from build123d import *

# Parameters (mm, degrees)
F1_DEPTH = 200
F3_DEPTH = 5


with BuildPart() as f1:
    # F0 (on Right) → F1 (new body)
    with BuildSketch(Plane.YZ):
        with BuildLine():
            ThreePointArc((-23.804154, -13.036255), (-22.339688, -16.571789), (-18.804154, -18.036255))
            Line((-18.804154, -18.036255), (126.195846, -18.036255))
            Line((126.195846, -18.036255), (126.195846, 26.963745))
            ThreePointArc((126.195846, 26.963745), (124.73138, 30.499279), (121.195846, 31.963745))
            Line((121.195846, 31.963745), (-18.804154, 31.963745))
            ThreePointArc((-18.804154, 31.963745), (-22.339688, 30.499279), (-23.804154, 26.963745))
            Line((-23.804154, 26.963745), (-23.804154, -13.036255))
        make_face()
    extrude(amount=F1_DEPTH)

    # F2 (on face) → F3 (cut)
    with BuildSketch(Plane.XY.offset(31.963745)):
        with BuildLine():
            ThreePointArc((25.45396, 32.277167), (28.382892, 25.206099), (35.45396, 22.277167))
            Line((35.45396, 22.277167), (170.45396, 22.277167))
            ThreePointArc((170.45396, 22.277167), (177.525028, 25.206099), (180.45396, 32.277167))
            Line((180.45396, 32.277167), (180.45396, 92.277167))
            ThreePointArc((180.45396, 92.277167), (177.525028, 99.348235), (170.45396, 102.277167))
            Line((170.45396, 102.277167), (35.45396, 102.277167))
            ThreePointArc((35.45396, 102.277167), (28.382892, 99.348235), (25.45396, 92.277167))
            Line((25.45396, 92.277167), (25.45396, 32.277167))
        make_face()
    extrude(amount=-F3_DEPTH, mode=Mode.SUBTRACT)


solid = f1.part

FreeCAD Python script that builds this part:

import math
import FreeCAD as App
import Part
import Sketcher

V = App.Vector
Q = App.Units.Quantity

doc = App.newDocument("Part")
body = doc.addObject("PartDesign::Body", "Body")

sketch1 = body.newObject("Sketcher::SketchObject", "Sketch")
sketch1.AttachmentSupport = (doc.getObject("YZ_Plane"), [""])
sketch1.MapMode = "FlatFace"
sketch1.addGeometry([
    Part.ArcOfCircle(Part.Circle(V(-18.8, -13, 0), V(0, 0, 1), 5), math.radians(180), math.radians(270)),
    Part.LineSegment(V(-18.8, -18, 0), V(126.2, -18, 0)),
    Part.LineSegment(V(126.2, -18, 0), V(126.2, 27, 0)),
    Part.ArcOfCircle(Part.Circle(V(121.2, 27, 0), V(0, 0, 1), 5), math.radians(0), math.radians(90)),
    Part.LineSegment(V(121.2, 32, 0), V(-18.8, 32, 0)),
    Part.ArcOfCircle(Part.Circle(V(-18.8, 27, 0), V(0, 0, 1), 5), math.radians(90), math.radians(180)),
    Part.LineSegment(V(-23.8, 27, 0), V(-23.8, -13, 0)),
], False)
sketch1.addConstraint([
    Sketcher.Constraint("Tangent", 0, 2, 1, 1),
    Sketcher.Constraint("Coincident", 1, 2, 2, 1),
    Sketcher.Constraint("Tangent", 2, 2, 3, 1),
    Sketcher.Constraint("Tangent", 3, 2, 4, 1),
    Sketcher.Constraint("Tangent", 4, 2, 5, 1),
    Sketcher.Constraint("Tangent", 5, 2, 6, 1),
    Sketcher.Constraint("Tangent", 6, 2, 0, 1),
    Sketcher.Constraint("Horizontal", 1),
    Sketcher.Constraint("Vertical", 2),
    Sketcher.Constraint("Horizontal", 4),
    Sketcher.Constraint("Vertical", 6),
    Sketcher.Constraint("Equal", 0, 3),
    Sketcher.Constraint("Equal", 3, 5),
    Sketcher.Constraint("Radius", 0, Q("5 mm")),
    Sketcher.Constraint("DistanceX", 1, 1, 1, 2, Q("145 mm")),
    Sketcher.Constraint("DistanceY", 2, 1, 2, 2, Q("45 mm")),
    Sketcher.Constraint("DistanceX", 0, 3, -1, 1, Q("18.804154 mm")),
    Sketcher.Constraint("DistanceY", 0, 3, -1, 1, Q("13.036255 mm")),
])
pad1 = body.newObject("PartDesign::Pad", "Pad")
pad1.Profile = sketch1
pad1.Length = 200

sketch2 = body.newObject("Sketcher::SketchObject", "Sketch001")
sketch2.AttachmentSupport = (doc.getObject("XY_Plane"), [""])
sketch2.MapMode = "FlatFace"
sketch2.AttachmentOffset = App.Placement(V(0, 0, 31.963745), App.Rotation())
sketch2.addGeometry([
    Part.ArcOfCircle(Part.Circle(V(35, 32, 0), V(0, 0, 1), 10), math.radians(180), math.radians(270)),
    Part.LineSegment(V(35, 22, 0), V(170, 22, 0)),
    Part.ArcOfCircle(Part.Circle(V(170, 32, 0), V(0, 0, 1), 10), math.radians(-90), math.radians(0)),
    Part.LineSegment(V(180, 32, 0), V(180, 92, 0)),
    Part.ArcOfCircle(Part.Circle(V(170, 92, 0), V(0, 0, 1), 10), math.radians(0), math.radians(90)),
    Part.LineSegment(V(170, 102, 0), V(35, 102, 0)),
    Part.ArcOfCircle(Part.Circle(V(35, 92, 0), V(0, 0, 1), 10), math.radians(90), math.radians(180)),
    Part.LineSegment(V(25, 92, 0), V(25, 32, 0)),
], False)
sketch2.addConstraint([
    Sketcher.Constraint("Tangent", 0, 2, 1, 1),
    Sketcher.Constraint("Tangent", 1, 2, 2, 1),
    Sketcher.Constraint("Tangent", 2, 2, 3, 1),
    Sketcher.Constraint("Tangent", 3, 2, 4, 1),
    Sketcher.Constraint("Tangent", 4, 2, 5, 1),
    Sketcher.Constraint("Tangent", 5, 2, 6, 1),
    Sketcher.Constraint("Tangent", 6, 2, 7, 1),
    Sketcher.Constraint("Tangent", 7, 2, 0, 1),
    Sketcher.Constraint("Horizontal", 1),
    Sketcher.Constraint("Vertical", 3),
    Sketcher.Constraint("Horizontal", 5),
    Sketcher.Constraint("Vertical", 7),
    Sketcher.Constraint("Equal", 0, 2),
    Sketcher.Constraint("Equal", 2, 4),
    Sketcher.Constraint("Equal", 4, 6),
    Sketcher.Constraint("Radius", 0, Q("9.999999 mm")),
    Sketcher.Constraint("DistanceX", 1, 1, 1, 2, Q("135 mm")),
    Sketcher.Constraint("DistanceY", 3, 1, 3, 2, Q("60 mm")),
    Sketcher.Constraint("DistanceX", -1, 1, 0, 3, Q("35.453959 mm")),
    Sketcher.Constraint("DistanceY", -1, 1, 0, 3, Q("32.277166 mm")),
])
pocket1 = body.newObject("PartDesign::Pocket", "Pocket")
pocket1.Profile = sketch2
pocket1.Length = 5

doc.recompute()
